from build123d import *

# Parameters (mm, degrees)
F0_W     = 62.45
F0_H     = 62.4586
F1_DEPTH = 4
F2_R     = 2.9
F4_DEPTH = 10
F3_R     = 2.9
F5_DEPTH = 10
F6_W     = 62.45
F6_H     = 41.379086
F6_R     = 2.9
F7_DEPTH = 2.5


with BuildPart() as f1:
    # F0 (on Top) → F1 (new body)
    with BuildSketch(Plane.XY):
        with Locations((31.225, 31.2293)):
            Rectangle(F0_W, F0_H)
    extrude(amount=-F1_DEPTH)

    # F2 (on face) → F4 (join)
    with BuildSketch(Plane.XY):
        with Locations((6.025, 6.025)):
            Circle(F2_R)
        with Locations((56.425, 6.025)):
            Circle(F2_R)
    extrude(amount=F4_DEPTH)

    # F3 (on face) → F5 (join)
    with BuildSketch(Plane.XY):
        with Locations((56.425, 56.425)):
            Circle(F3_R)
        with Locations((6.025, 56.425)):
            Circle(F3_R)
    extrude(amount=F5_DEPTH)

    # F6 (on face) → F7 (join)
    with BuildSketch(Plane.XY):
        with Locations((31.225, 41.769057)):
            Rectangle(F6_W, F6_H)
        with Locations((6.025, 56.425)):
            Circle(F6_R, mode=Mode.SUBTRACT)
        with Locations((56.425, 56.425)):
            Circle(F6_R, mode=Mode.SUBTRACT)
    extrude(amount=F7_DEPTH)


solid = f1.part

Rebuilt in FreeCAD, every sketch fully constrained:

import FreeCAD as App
import Part
import Sketcher

V = App.Vector

doc = App.newDocument("Part")
body = doc.addObject("PartDesign::Body", "Body")

# Sketch on XY plane
sketch1 = body.newObject("Sketcher::SketchObject", "Sketch")
sketch1.AttachmentSupport = (doc.getObject("XY_Plane"), [""])
sketch1.MapMode = "FlatFace"
sketch1.addGeometry([
    Part.LineSegment(V(0, 62, 0), V(0, 0, 0)),
    Part.LineSegment(V(0, 0, 0), V(62, 0, 0)),
    Part.LineSegment(V(62, 0, 0), V(62, 62, 0)),
    Part.LineSegment(V(62, 62, 0), V(0, 62, 0)),
], False)
sketch1.addConstraint([
    Sketcher.Constraint("Coincident", 0, 2, 1, 1),
    Sketcher.Constraint("Coincident", 1, 2, 2, 1),
    Sketcher.Constraint("Coincident", 2, 2, 3, 1),
    Sketcher.Constraint("Coincident", 3, 2, 0, 1),
    Sketcher.Constraint("Vertical", 0),
    Sketcher.Constraint("Horizontal", 1),
    Sketcher.Constraint("Vertical", 2),
    Sketcher.Constraint("Horizontal", 3),
    Sketcher.Constraint("Coincident", 0, 2, -1, 1),
    Sketcher.Constraint("DistanceX", 1, 1, 1, 2, 62.45),
    Sketcher.Constraint("DistanceY", 0, 2, 0, 1, 62.4586),
])
pad1 = body.newObject("PartDesign::Pad", "Pad")
pad1.Profile = sketch1
pad1.Length = 4
pad1.Reversed = True

# Sketch on XY plane
sketch2 = body.newObject("Sketcher::SketchObject", "Sketch001")
sketch2.AttachmentSupport = (doc.getObject("XY_Plane"), [""])
sketch2.MapMode = "FlatFace"
sketch2.addGeometry([
    Part.Circle(V(6, 6, 0), V(0, 0, 1), 2.9),
    Part.Circle(V(56.4, 6, 0), V(0, 0, 1), 2.9),
], False)
sketch2.addConstraint([
    Sketcher.Constraint("Equal", 0, 1),
    Sketcher.Constraint("Horizontal", 0, 3, 1, 3),
    Sketcher.Constraint("Diameter", 0, 5.8),
    Sketcher.Constraint("DistanceX", 0, 3, 1, 3, 50.4),
    Sketcher.Constraint("DistanceX", -1, 1, 0, 3, 6.025),
    Sketcher.Constraint("DistanceY", -1, 1, 0, 3, 6.025),
])
pad2 = body.newObject("PartDesign::Pad", "Pad001")
pad2.Profile = sketch2
pad2.Length = 10

# Sketch on XY plane
sketch3 = body.newObject("Sketcher::SketchObject", "Sketch002")
sketch3.AttachmentSupport = (doc.getObject("XY_Plane"), [""])
sketch3.MapMode = "FlatFace"
sketch3.addGeometry([
    Part.Circle(V(56.4, 56.4, 0), V(0, 0, 1), 2.9),
    Part.Circle(V(6, 56.4, 0), V(0, 0, 1), 2.9),
], False)
sketch3.addConstraint([
    Sketcher.Constraint("Equal", 0, 1),
    Sketcher.Constraint("Horizontal", 0, 3, 1, 3),
    Sketcher.Constraint("Diameter", 0, 5.8),
    Sketcher.Constraint("DistanceX", 1, 3, 0, 3, 50.4),
    Sketcher.Constraint("DistanceX", -1, 1, 0, 3, 56.425),
    Sketcher.Constraint("DistanceY", -1, 1, 0, 3, 56.425),
])
pad3 = body.newObject("PartDesign::Pad", "Pad002")
pad3.Profile = sketch3
pad3.Length = 10

# Sketch on XY plane
sketch4 = body.newObject("Sketcher::SketchObject", "Sketch003")
sketch4.AttachmentSupport = (doc.getObject("XY_Plane"), [""])
sketch4.MapMode = "FlatFace"
sketch4.addGeometry([
    Part.LineSegment(V(0, 62.5, 0), V(0, 21.1, 0)),  # 0
    Part.LineSegment(V(0, 21.1, 0), V(62.5, 21.1, 0)),  # 1
    Part.LineSegment(V(62.5, 21.1, 0), V(62.5, 62.5, 0)),  # 2
    Part.LineSegment(V(62.5, 62.5, 0), V(0, 62.5, 0)),  # 3
    Part.Circle(V(6, 56.4, 0), V(0, 0, 1), 2.9),  # 4
    Part.Circle(V(56.4, 56.4, 0), V(0, 0, 1), 2.9),  # 5
], False)
sketch4.addConstraint([
    Sketcher.Constraint("Coincident", 0, 2, 1, 1),
    Sketcher.Constraint("Coincident", 1, 2, 2, 1),
    Sketcher.Constraint("Coincident", 2, 2, 3, 1),
    Sketcher.Constraint("Coincident", 3, 2, 0, 1),
    Sketcher.Constraint("Vertical", 0),
    Sketcher.Constraint("Horizontal", 1),
    Sketcher.Constraint("Vertical", 2),
    Sketcher.Constraint("Horizontal", 3),
    Sketcher.Constraint("Equal", 4, 5),
    Sketcher.Constraint("PointOnObject", 0, 2, -2),
    Sketcher.Constraint("Horizontal", 4, 3, 5, 3),
    Sketcher.Constraint("Diameter", 4, 5.8),
    Sketcher.Constraint("DistanceX", 1, 1, 1, 2, 62.45),
    Sketcher.Constraint("DistanceX", 4, 3, 5, 3, 50.4),
    Sketcher.Constraint("DistanceX", -1, 1, 4, 3, 6.025),
    Sketcher.Constraint("DistanceY", -1, 1, 4, 3, 56.425),
    Sketcher.Constraint("DistanceY", -1, 1, 2, 2, 62.4586),
    Sketcher.Constraint("DistanceY", 0, 2, 0, 1, 41.379086),
])
pad4 = body.newObject("PartDesign::Pad", "Pad003")
pad4.Profile = sketch4
pad4.Length = 2.5

doc.recompute()
